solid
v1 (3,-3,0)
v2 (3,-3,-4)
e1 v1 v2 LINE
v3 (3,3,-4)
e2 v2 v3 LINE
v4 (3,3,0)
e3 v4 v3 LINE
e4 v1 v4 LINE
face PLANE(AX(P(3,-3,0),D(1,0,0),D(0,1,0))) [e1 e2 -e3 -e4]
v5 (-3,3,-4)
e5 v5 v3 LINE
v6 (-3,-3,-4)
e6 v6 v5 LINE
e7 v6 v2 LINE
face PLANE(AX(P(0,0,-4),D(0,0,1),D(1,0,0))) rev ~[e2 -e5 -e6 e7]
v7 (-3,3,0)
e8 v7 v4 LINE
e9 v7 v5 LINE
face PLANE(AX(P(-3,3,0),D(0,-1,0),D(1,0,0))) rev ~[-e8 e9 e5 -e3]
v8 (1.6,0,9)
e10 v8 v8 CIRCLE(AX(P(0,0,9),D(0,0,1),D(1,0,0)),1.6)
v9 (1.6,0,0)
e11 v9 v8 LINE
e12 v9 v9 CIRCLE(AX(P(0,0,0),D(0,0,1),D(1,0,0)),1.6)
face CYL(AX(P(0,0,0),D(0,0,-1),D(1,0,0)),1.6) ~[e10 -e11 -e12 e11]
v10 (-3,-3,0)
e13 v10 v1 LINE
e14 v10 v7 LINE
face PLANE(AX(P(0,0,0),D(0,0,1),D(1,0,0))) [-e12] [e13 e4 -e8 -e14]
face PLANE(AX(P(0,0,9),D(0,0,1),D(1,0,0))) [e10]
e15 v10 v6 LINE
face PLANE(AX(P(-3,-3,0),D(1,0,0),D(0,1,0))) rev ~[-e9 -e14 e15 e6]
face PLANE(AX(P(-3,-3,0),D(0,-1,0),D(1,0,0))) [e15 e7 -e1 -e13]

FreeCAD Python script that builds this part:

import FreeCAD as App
import Part
import Sketcher

V = App.Vector
Q = App.Units.Quantity

doc = App.newDocument("Part")
body = doc.addObject("PartDesign::Body", "Body")

# Sketch on XY plane
sketch1 = doc.addObject("Sketcher::SketchObject", "Sketch")
body.addObject(sketch1)
sketch1.AttachmentSupport = (doc.XY_Plane, [""])
sketch1.MapMode = "FlatFace"
sketch1.addGeometry([
    Part.LineSegment(V(-3, 3, 0), V(-3, -3, 0)),
    Part.LineSegment(V(-3, -3, 0), V(3, -3, 0)),
    Part.LineSegment(V(3, -3, 0), V(3, 3, 0)),
    Part.LineSegment(V(3, 3, 0), V(-3, 3, 0)),
], False)
sketch1.addConstraint([
    Sketcher.Constraint("Coincident", 0, 2, 1, 1),
    Sketcher.Constraint("Coincident", 1, 2, 2, 1),
    Sketcher.Constraint("Coincident", 2, 2, 3, 1),
    Sketcher.Constraint("Coincident", 3, 2, 0, 1),
    Sketcher.Constraint("Vertical", 0),
    Sketcher.Constraint("Horizontal", 1),
    Sketcher.Constraint("Vertical", 2),
    Sketcher.Constraint("Horizontal", 3),
    Sketcher.Constraint("Symmetric", 0, 2, 2, 2, -1, 1),
    Sketcher.Constraint("Equal", 3, 0),
    Sketcher.Constraint("DistanceX", 1, 1, 1, 2, Q("6 mm")),
])
pad1 = doc.addObject("PartDesign::Pad", "Pad")
body.addObject(pad1)
pad1.Profile = sketch1
pad1.Length = 4
pad1.Reversed = True

# Sketch on XY plane
sketch2 = doc.addObject("Sketcher::SketchObject", "Sketch001")
body.addObject(sketch2)
sketch2.AttachmentSupport = (doc.XY_Plane, [""])
sketch2.MapMode = "FlatFace"
sketch2.addGeometry(Part.Circle(V(0, 0, 0), V(0, 0, 1), 1.6), False)
sketch2.addConstraint([
    Sketcher.Constraint("Coincident", 0, 3, -1, 1),
    Sketcher.Constraint("Diameter", 0, Q("3.2 mm")),
])
pad2 = doc.addObject("PartDesign::Pad", "Pad001")
body.addObject(pad2)
pad2.Profile = sketch2
pad2.Length = 9

doc.recompute()
